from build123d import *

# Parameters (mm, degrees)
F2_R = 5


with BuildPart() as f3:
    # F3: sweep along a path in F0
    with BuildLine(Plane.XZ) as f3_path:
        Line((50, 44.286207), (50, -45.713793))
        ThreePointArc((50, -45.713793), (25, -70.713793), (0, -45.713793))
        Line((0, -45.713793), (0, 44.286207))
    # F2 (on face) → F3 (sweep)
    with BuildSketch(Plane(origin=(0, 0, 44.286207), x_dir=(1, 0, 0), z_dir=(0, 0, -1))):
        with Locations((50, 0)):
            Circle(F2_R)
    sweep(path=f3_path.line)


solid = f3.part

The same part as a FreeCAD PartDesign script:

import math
import FreeCAD as App
import Part
import Sketcher

V = App.Vector
Q = App.Units.Quantity

doc = App.newDocument("Part")
body = doc.addObject("PartDesign::Body", "Body")

sketch1 = body.newObject("Sketcher::SketchObject", "Sketch")
sketch1.AttachmentSupport = (doc.getObject("XY_Plane"), [""])
sketch1.MapMode = "FlatFace"
sketch1.AttachmentOffset = App.Placement(V(0, 0, 44.286207), App.Rotation())
sketch1.addGeometry(Part.Circle(V(50, 0, 0), V(0, 0, 1), 5), False)
sketch1.addConstraint([
    Sketcher.Constraint("PointOnObject", 0, 3, -1),
    Sketcher.Constraint("Diameter", 0, Q("10 mm")),
    Sketcher.Constraint("DistanceX", -1, 1, 0, 3, Q("50 mm")),
])

sketch2 = body.newObject("Sketcher::SketchObject", "Sketch001")
sketch2.AttachmentSupport = (doc.getObject("XZ_Plane"), [""])
sketch2.MapMode = "FlatFace"
sketch2.addGeometry([
    Part.LineSegment(V(50, 44, 0), V(50, -46, 0)),
    Part.ArcOfCircle(Part.Circle(V(25, -46, 0), V(0, 0, 1), 25), math.radians(180), math.radians(360)),
    Part.LineSegment(V(0, -46, 0), V(0, 44, 0)),
], False)
sketch2.addConstraint([
    Sketcher.Constraint("Tangent", 0, 2, 1, 2),
    Sketcher.Constraint("Tangent", 1, 1, 2, 1),
    Sketcher.Constraint("Vertical", 0),
    Sketcher.Constraint("Vertical", 2),
    Sketcher.Constraint("PointOnObject", 1, 1, -2),
    Sketcher.Constraint("Horizontal", 0, 1, 2, 2),
    Sketcher.Constraint("Radius", 1, Q("25 mm")),
    Sketcher.Constraint("DistanceY", 0, 2, 0, 1, Q("90 mm")),
    Sketcher.Constraint("DistanceY", 1, 3, -1, 1, Q("45.713793 mm")),
])
doc.recompute()

additivepipe = body.newObject("PartDesign::AdditivePipe", "AdditivePipe")
additivepipe.Profile = sketch1
additivepipe.Spine = (sketch2, ["Edge1", "Edge2", "Edge3"])

doc.recompute()
